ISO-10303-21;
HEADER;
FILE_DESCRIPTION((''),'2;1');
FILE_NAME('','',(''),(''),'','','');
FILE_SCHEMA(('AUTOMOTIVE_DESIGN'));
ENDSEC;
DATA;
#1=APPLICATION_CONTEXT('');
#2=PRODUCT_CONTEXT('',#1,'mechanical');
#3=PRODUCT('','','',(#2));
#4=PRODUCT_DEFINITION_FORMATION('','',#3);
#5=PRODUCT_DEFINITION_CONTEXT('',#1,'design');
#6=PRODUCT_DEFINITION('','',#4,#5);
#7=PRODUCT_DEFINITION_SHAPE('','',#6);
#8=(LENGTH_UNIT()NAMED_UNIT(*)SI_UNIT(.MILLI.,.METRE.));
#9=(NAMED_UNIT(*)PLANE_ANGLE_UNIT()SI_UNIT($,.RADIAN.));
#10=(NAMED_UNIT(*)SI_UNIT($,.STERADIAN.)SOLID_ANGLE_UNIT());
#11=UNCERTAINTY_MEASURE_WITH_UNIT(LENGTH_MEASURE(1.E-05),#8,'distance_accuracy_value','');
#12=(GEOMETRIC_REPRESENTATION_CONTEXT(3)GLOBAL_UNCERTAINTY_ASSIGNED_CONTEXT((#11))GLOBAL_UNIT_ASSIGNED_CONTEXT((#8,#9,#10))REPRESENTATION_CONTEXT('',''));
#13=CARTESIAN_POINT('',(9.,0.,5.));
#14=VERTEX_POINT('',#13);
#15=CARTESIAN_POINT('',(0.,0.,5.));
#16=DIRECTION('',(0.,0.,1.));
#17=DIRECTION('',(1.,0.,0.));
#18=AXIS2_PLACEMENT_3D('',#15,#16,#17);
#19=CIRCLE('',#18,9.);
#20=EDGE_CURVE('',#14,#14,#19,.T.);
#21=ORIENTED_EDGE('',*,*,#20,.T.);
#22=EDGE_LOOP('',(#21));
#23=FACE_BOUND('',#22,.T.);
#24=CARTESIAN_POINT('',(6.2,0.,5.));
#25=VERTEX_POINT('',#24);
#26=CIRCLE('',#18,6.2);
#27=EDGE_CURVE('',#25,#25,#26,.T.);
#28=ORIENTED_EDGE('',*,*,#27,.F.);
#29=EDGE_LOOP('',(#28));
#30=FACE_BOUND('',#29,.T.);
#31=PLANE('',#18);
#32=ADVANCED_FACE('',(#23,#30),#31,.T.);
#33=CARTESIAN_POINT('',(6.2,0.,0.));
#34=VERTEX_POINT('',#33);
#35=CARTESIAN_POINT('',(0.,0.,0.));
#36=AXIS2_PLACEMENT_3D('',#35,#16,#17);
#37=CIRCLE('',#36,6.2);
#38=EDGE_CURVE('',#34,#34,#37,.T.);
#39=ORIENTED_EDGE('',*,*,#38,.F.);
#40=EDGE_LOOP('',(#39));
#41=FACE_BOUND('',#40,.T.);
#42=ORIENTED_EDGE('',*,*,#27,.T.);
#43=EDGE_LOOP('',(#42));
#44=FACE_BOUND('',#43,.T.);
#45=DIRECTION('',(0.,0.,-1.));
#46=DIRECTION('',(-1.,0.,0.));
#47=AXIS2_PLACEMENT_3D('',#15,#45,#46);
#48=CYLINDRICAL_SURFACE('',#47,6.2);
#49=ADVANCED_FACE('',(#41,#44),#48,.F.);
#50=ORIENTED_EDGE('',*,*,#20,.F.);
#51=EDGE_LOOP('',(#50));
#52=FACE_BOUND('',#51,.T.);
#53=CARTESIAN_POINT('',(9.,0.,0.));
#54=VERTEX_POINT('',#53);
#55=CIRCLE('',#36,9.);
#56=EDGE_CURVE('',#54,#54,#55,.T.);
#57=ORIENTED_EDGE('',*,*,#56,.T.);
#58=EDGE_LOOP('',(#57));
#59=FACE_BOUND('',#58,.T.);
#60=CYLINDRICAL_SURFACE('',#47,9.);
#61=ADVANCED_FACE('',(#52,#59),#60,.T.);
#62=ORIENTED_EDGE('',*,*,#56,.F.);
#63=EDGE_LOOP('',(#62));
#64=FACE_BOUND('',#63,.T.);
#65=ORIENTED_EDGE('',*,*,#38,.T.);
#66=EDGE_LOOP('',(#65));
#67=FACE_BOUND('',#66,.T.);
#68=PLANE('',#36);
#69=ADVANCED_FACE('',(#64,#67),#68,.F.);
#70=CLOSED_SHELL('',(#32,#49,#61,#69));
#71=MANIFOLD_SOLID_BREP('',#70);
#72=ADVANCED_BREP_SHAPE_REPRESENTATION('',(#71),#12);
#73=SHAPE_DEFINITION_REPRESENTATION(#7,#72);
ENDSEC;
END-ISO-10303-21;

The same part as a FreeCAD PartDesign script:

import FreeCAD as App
import Part
import Sketcher
from FreeCAD import Vector

doc = App.newDocument("Part")
body = doc.addObject("PartDesign::Body", "Body")

# Sketch on XY plane
sketch1 = doc.addObject("Sketcher::SketchObject", "Sketch")
body.addObject(sketch1)
sketch1.AttachmentSupport = (doc.XY_Plane, [""])
sketch1.MapMode = "FlatFace"
sketch1.addGeometry([
    Part.Circle(Vector(0, 0, 0), Vector(0, 0, 1), 9),
    Part.Circle(Vector(0, 0, 0), Vector(0, 0, 1), 6),
], False)
sketch1.addConstraint([
    Sketcher.Constraint("Coincident", 0, 3, -1, 1),
    Sketcher.Constraint("Coincident", 1, 3, -1, 1),
    Sketcher.Constraint("Diameter", 0, 18.0),
    Sketcher.Constraint("Diameter", 1, 12.4),
])
pad1 = doc.addObject("PartDesign::Pad", "Pad")
body.addObject(pad1)
pad1.Profile = sketch1
pad1.Length = 5

doc.recompute()
